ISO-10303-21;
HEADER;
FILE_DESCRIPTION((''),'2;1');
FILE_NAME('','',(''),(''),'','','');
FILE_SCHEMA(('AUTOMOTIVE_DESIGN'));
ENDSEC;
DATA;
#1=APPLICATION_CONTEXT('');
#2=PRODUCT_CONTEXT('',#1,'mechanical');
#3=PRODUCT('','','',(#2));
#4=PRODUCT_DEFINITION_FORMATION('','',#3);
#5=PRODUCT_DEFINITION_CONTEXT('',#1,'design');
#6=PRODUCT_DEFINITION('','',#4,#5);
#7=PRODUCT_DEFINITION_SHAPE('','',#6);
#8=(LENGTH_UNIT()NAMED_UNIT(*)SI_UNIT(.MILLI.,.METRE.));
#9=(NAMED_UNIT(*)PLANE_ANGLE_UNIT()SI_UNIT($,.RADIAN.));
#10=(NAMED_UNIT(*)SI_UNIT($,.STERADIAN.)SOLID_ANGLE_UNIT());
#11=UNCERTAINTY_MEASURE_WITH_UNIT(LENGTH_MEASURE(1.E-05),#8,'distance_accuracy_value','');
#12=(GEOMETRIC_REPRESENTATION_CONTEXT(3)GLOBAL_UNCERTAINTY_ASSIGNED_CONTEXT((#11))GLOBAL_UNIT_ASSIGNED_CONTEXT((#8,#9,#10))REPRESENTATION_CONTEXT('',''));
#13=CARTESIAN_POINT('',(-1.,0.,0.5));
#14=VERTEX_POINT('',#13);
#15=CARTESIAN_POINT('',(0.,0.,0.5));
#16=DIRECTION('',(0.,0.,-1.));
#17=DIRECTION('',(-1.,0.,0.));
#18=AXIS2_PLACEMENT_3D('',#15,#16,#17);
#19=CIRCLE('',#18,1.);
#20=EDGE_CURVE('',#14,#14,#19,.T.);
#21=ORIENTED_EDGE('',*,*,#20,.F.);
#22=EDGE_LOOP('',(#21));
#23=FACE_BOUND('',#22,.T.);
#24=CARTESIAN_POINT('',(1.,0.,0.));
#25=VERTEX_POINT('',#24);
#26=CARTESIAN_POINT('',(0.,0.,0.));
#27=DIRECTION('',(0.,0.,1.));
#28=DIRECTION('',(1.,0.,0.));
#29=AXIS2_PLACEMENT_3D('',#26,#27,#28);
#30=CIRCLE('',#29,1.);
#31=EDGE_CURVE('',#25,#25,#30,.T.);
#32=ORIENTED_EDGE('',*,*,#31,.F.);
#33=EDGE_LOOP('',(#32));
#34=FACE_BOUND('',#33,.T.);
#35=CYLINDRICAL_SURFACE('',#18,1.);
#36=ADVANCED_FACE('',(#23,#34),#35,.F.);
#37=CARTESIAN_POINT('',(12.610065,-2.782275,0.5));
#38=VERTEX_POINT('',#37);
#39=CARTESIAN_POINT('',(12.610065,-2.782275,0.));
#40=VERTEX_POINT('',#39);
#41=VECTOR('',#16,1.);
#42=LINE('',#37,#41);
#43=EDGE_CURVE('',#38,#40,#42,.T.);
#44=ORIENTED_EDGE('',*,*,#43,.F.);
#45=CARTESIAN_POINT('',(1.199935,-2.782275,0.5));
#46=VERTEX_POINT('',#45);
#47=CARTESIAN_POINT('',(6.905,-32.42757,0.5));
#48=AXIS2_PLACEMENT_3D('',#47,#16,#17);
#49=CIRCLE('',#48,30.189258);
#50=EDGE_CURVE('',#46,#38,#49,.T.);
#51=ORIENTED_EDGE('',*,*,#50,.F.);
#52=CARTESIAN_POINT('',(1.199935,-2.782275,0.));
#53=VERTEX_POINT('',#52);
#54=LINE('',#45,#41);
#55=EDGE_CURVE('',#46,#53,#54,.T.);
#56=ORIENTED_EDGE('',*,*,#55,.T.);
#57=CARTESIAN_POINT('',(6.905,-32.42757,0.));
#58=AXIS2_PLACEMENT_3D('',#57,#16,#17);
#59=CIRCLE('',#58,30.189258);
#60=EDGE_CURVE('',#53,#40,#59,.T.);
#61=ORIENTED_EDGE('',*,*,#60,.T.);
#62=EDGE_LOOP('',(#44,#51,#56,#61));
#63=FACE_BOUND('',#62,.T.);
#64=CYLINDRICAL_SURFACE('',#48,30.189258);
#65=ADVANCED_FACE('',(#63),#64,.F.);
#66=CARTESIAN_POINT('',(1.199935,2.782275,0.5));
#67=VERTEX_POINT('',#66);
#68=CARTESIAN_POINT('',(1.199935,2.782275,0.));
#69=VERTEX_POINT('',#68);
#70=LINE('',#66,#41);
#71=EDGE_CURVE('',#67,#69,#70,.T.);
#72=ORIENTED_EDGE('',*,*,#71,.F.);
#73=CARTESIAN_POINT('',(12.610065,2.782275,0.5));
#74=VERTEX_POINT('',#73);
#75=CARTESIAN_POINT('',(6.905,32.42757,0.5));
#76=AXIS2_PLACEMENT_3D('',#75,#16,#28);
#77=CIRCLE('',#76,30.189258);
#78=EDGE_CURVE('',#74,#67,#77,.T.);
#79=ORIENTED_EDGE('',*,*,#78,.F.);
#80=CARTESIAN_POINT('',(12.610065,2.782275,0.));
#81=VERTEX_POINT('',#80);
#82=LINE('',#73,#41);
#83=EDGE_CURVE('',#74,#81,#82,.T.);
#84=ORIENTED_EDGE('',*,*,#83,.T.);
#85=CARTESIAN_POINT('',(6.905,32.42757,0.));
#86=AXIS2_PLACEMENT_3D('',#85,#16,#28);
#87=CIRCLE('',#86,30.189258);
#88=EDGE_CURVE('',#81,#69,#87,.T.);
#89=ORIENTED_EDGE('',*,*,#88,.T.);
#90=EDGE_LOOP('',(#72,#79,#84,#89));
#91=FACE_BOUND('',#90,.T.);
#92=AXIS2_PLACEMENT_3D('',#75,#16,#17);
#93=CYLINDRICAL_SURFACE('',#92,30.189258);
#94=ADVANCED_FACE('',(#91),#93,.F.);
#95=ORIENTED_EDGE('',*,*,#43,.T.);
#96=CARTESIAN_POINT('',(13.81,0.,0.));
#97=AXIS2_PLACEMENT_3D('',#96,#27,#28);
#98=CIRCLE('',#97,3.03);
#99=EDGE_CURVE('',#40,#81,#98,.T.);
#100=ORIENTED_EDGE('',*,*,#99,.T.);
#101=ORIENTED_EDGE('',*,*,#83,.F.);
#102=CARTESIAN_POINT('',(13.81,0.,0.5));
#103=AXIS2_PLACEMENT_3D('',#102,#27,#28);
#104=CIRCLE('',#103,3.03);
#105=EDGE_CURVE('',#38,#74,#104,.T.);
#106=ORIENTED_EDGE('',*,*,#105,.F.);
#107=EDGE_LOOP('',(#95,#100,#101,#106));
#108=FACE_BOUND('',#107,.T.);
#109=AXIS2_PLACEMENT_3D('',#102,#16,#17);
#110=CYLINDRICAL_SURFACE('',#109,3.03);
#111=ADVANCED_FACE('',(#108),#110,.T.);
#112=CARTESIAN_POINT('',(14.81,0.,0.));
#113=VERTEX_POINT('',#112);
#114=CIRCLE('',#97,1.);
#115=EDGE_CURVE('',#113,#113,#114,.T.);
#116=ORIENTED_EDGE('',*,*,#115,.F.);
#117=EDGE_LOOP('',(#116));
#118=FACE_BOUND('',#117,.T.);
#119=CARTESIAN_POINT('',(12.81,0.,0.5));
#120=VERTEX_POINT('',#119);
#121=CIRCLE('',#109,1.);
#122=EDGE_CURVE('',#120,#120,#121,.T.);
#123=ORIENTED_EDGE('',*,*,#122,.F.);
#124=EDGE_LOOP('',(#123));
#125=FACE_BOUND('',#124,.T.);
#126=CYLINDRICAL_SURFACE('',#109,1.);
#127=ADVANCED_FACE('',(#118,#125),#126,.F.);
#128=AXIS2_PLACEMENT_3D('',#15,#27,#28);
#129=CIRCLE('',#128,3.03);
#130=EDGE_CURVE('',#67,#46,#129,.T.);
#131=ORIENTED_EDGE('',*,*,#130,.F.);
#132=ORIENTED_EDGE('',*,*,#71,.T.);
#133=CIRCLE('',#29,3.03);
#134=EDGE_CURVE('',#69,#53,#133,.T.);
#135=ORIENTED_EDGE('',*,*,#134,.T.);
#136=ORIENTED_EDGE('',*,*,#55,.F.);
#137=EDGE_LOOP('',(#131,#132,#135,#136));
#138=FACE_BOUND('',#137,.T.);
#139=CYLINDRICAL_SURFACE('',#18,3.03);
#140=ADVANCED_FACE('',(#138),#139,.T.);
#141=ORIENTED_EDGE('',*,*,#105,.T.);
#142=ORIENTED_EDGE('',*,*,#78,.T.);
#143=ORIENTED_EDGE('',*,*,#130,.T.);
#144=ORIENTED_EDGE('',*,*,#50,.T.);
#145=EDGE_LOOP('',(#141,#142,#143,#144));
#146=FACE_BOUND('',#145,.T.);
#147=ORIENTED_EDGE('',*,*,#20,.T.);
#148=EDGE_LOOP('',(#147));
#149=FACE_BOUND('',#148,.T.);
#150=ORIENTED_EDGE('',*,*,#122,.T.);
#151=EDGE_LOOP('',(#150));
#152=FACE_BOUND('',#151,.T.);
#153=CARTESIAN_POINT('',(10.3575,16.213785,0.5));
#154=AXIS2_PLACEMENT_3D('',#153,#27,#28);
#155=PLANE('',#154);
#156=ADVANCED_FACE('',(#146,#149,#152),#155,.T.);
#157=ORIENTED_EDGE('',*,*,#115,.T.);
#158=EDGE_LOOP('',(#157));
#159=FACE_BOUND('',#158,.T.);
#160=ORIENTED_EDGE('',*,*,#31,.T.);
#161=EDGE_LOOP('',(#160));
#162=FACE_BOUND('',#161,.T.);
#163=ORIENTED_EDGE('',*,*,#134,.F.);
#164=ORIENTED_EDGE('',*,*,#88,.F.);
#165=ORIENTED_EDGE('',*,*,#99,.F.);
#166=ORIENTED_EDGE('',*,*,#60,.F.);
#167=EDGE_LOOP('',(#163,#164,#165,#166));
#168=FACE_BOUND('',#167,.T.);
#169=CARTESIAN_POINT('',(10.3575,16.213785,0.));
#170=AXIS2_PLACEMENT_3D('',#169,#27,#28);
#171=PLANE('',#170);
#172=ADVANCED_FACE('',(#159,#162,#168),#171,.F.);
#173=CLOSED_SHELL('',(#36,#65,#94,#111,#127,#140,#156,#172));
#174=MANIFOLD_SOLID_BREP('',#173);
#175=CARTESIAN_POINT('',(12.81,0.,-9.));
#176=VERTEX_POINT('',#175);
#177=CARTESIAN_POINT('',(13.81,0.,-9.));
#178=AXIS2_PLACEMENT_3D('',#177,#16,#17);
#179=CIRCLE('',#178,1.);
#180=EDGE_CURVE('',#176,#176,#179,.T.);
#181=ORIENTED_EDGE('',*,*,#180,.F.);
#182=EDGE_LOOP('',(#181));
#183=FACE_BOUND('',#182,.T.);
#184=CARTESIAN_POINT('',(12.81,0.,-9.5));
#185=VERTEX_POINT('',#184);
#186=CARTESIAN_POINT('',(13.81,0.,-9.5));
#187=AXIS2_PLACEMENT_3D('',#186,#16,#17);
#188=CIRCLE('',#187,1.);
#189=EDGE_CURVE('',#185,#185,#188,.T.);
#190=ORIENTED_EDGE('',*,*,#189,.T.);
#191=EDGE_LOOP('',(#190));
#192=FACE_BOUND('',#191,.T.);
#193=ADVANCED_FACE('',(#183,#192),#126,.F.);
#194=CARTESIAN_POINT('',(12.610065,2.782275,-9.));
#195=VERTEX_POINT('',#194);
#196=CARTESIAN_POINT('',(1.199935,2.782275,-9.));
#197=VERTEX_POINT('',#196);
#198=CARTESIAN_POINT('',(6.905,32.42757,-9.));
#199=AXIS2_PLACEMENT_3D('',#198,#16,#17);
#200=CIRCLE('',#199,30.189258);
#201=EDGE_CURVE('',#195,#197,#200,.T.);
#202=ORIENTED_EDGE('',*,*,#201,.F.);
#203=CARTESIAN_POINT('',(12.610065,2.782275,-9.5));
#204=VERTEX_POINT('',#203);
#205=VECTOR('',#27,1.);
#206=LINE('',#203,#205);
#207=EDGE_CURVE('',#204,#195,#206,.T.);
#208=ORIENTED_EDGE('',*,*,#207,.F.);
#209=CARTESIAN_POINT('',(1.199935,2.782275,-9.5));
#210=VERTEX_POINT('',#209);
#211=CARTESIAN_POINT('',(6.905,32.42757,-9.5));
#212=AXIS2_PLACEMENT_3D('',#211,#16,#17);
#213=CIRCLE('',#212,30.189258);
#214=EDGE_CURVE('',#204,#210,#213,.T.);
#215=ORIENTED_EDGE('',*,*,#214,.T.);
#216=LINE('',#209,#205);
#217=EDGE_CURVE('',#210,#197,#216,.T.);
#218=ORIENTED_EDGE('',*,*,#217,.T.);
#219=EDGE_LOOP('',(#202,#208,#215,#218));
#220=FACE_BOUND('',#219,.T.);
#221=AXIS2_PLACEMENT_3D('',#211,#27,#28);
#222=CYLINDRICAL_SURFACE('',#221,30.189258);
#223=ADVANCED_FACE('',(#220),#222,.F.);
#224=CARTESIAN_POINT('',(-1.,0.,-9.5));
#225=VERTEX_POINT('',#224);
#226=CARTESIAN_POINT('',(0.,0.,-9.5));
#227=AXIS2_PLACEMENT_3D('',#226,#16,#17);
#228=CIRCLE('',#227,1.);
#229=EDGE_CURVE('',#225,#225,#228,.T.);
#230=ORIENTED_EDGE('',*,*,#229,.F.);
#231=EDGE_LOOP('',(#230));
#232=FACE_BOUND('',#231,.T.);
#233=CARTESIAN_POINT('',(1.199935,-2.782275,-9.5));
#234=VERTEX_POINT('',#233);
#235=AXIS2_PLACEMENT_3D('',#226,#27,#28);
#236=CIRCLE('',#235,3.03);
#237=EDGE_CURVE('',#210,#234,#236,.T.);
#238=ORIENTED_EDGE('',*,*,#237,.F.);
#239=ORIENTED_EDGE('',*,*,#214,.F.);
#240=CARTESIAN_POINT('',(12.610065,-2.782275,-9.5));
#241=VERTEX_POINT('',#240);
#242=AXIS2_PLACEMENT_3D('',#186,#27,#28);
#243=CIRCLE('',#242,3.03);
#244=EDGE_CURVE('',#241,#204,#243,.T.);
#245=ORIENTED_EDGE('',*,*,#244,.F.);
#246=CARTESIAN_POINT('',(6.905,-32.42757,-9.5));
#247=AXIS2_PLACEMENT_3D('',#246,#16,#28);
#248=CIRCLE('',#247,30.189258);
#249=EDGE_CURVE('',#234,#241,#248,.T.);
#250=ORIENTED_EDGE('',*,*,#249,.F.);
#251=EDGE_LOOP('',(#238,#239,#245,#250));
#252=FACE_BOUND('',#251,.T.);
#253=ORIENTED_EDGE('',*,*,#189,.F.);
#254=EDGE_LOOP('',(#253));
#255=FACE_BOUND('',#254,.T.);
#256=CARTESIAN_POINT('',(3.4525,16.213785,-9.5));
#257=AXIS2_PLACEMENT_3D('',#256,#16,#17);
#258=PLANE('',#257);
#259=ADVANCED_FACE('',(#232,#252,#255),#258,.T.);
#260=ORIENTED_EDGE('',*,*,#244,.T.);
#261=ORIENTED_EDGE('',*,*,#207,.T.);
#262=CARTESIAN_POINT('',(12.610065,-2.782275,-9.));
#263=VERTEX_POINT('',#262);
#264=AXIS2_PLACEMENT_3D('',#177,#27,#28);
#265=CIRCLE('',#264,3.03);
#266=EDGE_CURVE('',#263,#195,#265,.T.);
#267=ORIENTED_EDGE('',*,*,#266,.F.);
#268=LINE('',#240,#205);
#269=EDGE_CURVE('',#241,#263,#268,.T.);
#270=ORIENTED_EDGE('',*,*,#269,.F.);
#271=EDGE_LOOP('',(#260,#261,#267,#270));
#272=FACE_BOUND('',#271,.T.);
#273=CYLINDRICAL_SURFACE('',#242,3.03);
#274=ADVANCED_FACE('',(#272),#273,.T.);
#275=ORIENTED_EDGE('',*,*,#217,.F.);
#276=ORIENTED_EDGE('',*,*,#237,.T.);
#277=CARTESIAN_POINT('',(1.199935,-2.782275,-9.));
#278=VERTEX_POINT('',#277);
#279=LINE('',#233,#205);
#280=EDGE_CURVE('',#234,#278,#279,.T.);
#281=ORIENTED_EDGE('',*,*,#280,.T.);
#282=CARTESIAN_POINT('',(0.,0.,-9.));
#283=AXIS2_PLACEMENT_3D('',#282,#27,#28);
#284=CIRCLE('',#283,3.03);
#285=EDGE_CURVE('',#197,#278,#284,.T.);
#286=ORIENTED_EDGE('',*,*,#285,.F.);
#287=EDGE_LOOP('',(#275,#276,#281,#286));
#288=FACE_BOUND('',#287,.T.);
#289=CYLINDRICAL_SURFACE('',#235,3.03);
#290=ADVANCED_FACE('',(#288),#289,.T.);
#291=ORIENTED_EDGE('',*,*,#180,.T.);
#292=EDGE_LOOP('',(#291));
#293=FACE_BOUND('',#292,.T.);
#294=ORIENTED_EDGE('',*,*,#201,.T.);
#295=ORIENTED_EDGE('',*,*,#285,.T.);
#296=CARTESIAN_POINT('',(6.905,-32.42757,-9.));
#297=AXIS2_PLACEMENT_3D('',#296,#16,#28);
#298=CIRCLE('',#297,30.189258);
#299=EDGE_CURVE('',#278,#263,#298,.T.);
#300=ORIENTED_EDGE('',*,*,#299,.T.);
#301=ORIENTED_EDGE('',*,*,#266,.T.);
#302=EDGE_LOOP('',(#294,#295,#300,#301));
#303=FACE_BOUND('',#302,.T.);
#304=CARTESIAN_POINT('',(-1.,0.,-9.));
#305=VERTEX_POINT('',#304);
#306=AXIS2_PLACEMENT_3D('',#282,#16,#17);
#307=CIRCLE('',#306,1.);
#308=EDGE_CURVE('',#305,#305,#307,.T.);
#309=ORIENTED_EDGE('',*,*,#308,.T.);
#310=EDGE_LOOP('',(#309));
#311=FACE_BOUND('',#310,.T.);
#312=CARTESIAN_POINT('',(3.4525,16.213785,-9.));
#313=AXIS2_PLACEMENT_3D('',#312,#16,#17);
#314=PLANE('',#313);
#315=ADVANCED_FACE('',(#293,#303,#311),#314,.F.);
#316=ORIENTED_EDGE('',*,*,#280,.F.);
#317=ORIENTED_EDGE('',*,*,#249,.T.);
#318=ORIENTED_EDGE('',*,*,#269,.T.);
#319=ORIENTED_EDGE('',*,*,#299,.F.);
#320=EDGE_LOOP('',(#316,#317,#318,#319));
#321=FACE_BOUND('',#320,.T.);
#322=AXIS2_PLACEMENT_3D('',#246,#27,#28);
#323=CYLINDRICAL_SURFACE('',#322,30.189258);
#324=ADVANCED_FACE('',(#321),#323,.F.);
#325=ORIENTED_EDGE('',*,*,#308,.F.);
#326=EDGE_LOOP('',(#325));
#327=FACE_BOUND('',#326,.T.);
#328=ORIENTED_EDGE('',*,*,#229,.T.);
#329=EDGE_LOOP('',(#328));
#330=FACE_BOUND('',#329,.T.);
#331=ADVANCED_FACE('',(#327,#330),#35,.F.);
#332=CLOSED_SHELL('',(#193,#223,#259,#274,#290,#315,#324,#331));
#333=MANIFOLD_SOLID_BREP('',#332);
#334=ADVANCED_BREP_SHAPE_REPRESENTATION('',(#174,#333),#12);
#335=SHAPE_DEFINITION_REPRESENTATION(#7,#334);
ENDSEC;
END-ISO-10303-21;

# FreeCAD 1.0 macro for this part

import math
import FreeCAD as App
import Part
import Sketcher
Q = App.Units.Quantity

doc = App.newDocument("Part")
params = doc.addObject("Spreadsheet::Sheet", "Params")
for row, (alias, value) in enumerate([
    ("sketch1_radius", "3.03 mm"),
    ("pad1_length", "0.5 mm"),
    ("sketch2_radius", "3.03 mm"),
    ("pad2_length", "0.5 mm"),
    ("sketch3_diameter", "2 mm"),
    ("pad3_length", "20.818337 mm"),
    ("pad3_length2", "20.818337 mm"),
], start=1):
    params.set(f"A{row}", alias)
    params.set(f"B{row}", "=" + value)
    params.setAlias(f"B{row}", alias)

body = doc.addObject("PartDesign::Body", "Body")

sketch1 = doc.addObject("Sketcher::SketchObject", "Sketch")
body.addObject(sketch1)
sketch1.AttachmentSupport = (doc.XY_Plane, [""])
sketch1.MapMode = "FlatFace"
sketch1.addGeometry(Part.ArcOfCircle(Part.Circle(App.Vector(0, 0, 0), App.Vector(0, 0, 1), 3.03), math.radians(66.67052), math.radians(293.32948)), False)
sketch1.addGeometry(Part.ArcOfCircle(Part.Circle(App.Vector(6.905, -32.42757, 0), App.Vector(0, 0, 1), 30.189258), math.radians(79.10693), math.radians(100.89307)), False)
sketch1.addGeometry(Part.ArcOfCircle(Part.Circle(App.Vector(13.81, 0, 0), App.Vector(0, 0, 1), 3.03), math.radians(-113.32948), math.radians(113.32948)), False)
sketch1.addGeometry(Part.ArcOfCircle(Part.Circle(App.Vector(6.905, 32.42757, 0), App.Vector(0, 0, 1), 30.189258), math.radians(-100.89307), math.radians(-79.10693)), False)
sketch1.addConstraint(Sketcher.Constraint("Coincident", 0, 2, 1, 2))
sketch1.addConstraint(Sketcher.Constraint("Coincident", 1, 1, 2, 1))
sketch1.addConstraint(Sketcher.Constraint("Coincident", 2, 2, 3, 2))
sketch1.addConstraint(Sketcher.Constraint("Coincident", 3, 1, 0, 1))
sketch1.addConstraint(Sketcher.Constraint("Coincident", 0, 3, -1, 1))
sketch1.addConstraint(Sketcher.Constraint("Equal", 0, 2))
sketch1.addConstraint(Sketcher.Constraint("Equal", 1, 3))
sketch1.addConstraint(Sketcher.Constraint("Symmetric", 1, 3, 3, 3, -1))
sketch1.addConstraint(Sketcher.Constraint("PointOnObject", 2, 3, -1))
sketch1.addConstraint(Sketcher.Constraint("Horizontal", 0, 2, 1, 1))
sketch1.addConstraint(Sketcher.Constraint("Radius", 0, Q("3.03 mm")))
sketch1.addConstraint(Sketcher.Constraint("DistanceX", -1, 1, 2, 3, Q("13.81 mm")))
sketch1.addConstraint(Sketcher.Constraint("Radius", 1, Q("30.189258 mm")))
sketch1.addConstraint(Sketcher.Constraint("DistanceY", 1, 3, -1, 1, Q("32.42757 mm")))
sketch1.setExpression("Constraints[10]", "Params.sketch1_radius")
pad1 = doc.addObject("PartDesign::Pad", "Pad")
body.addObject(pad1)
pad1.Profile = sketch1
pad1.setExpression("Length", "Params.pad1_length")
body2 = doc.addObject("PartDesign::Body", "Body001")

sketch2 = doc.addObject("Sketcher::SketchObject", "Sketch001")
body2.addObject(sketch2)
sketch2.AttachmentSupport = (doc.getObject("XY_Plane001"), [""])
sketch2.MapMode = "FlatFace"
sketch2.AttachmentOffset = App.Placement(App.Vector(0, 0, -9), App.Rotation())
sketch2.addGeometry(Part.ArcOfCircle(Part.Circle(App.Vector(13.81, 0, 0), App.Vector(0, 0, 1), 3.03), math.radians(-113.32948), math.radians(113.32948)), False)
sketch2.addGeometry(Part.ArcOfCircle(Part.Circle(App.Vector(6.905, 32.42757, 0), App.Vector(0, 0, 1), 30.189258), math.radians(-100.89307), math.radians(-79.10693)), False)
sketch2.addGeometry(Part.ArcOfCircle(Part.Circle(App.Vector(0, 0, 0), App.Vector(0, 0, 1), 3.03), math.radians(66.67052), math.radians(293.32948)), False)
sketch2.addGeometry(Part.ArcOfCircle(Part.Circle(App.Vector(6.905, -32.42757, 0), App.Vector(0, 0, 1), 30.189258), math.radians(79.10693), math.radians(100.89307)), False)
sketch2.addConstraint(Sketcher.Constraint("Coincident", 0, 2, 1, 2))
sketch2.addConstraint(Sketcher.Constraint("Coincident", 1, 1, 2, 1))
sketch2.addConstraint(Sketcher.Constraint("Coincident", 2, 2, 3, 2))
sketch2.addConstraint(Sketcher.Constraint("Coincident", 3, 1, 0, 1))
sketch2.addConstraint(Sketcher.Constraint("Coincident", 2, 3, -1, 1))
sketch2.addConstraint(Sketcher.Constraint("Equal", 0, 2))
sketch2.addConstraint(Sketcher.Constraint("Equal", 1, 3))
sketch2.addConstraint(Sketcher.Constraint("Symmetric", 1, 3, 3, 3, -1))
sketch2.addConstraint(Sketcher.Constraint("PointOnObject", 0, 3, -1))
sketch2.addConstraint(Sketcher.Constraint("Horizontal", 0, 2, 1, 1))
sketch2.addConstraint(Sketcher.Constraint("Radius", 0, Q("3.03 mm")))
sketch2.addConstraint(Sketcher.Constraint("DistanceX", -1, 1, 0, 3, Q("13.81 mm")))
sketch2.addConstraint(Sketcher.Constraint("Radius", 1, Q("30.189258 mm")))
sketch2.addConstraint(Sketcher.Constraint("DistanceY", -1, 1, 1, 3, Q("32.42757 mm")))
sketch2.setExpression("Constraints[10]", "Params.sketch2_radius")
pad2 = doc.addObject("PartDesign::Pad", "Pad001")
body2.addObject(pad2)
pad2.Profile = sketch2
pad2.setExpression("Length", "Params.pad2_length")
pad2.Reversed = True
body3 = doc.addObject("PartDesign::Body", "Body002")
body3.AllowCompound = True

sketch3 = doc.addObject("Sketcher::SketchObject", "Sketch002")
body3.addObject(sketch3)
sketch3.AttachmentSupport = (doc.getObject("XY_Plane002"), [""])
sketch3.MapMode = "FlatFace"
sketch3.AttachmentOffset = App.Placement(App.Vector(0, 0, -9.5), App.Rotation())
sketch3.addGeometry(Part.Circle(App.Vector(13.81, 0, 0), App.Vector(0, 0, 1), 1), False)
sketch3.addGeometry(Part.Circle(App.Vector(0, 0, 0), App.Vector(0, 0, 1), 1), False)
sketch3.addConstraint(Sketcher.Constraint("Coincident", 1, 3, -1, 1))
sketch3.addConstraint(Sketcher.Constraint("Equal", 0, 1))
sketch3.addConstraint(Sketcher.Constraint("PointOnObject", 0, 3, -1))
sketch3.addConstraint(Sketcher.Constraint("Diameter", 0, Q("2 mm")))
sketch3.addConstraint(Sketcher.Constraint("DistanceX", -1, 1, 0, 3, Q("13.81 mm")))
sketch3.setExpression("Constraints[3]", "Params.sketch3_diameter")
pad3 = doc.addObject("PartDesign::Pad", "Pad002")
body3.addObject(pad3)
pad3.Profile = sketch3
pad3.Type = "TwoLengths"
pad3.setExpression("Length", "Params.pad3_length")
pad3.setExpression("Length2", "Params.pad3_length2")
pad3.Reversed = True
doc.recompute()

body4 = doc.addObject("PartDesign::Body", "Body003")
body4.BaseFeature = body3
boolean = doc.addObject("PartDesign::Boolean", "Boolean")
body.addObject(boolean)
boolean.Type = "Cut"
boolean.addObjects([body4])
doc.recompute()

boolean2 = doc.addObject("PartDesign::Boolean", "Boolean001")
body2.addObject(boolean2)
boolean2.Type = "Cut"
boolean2.addObjects([body3])

doc.recompute()
